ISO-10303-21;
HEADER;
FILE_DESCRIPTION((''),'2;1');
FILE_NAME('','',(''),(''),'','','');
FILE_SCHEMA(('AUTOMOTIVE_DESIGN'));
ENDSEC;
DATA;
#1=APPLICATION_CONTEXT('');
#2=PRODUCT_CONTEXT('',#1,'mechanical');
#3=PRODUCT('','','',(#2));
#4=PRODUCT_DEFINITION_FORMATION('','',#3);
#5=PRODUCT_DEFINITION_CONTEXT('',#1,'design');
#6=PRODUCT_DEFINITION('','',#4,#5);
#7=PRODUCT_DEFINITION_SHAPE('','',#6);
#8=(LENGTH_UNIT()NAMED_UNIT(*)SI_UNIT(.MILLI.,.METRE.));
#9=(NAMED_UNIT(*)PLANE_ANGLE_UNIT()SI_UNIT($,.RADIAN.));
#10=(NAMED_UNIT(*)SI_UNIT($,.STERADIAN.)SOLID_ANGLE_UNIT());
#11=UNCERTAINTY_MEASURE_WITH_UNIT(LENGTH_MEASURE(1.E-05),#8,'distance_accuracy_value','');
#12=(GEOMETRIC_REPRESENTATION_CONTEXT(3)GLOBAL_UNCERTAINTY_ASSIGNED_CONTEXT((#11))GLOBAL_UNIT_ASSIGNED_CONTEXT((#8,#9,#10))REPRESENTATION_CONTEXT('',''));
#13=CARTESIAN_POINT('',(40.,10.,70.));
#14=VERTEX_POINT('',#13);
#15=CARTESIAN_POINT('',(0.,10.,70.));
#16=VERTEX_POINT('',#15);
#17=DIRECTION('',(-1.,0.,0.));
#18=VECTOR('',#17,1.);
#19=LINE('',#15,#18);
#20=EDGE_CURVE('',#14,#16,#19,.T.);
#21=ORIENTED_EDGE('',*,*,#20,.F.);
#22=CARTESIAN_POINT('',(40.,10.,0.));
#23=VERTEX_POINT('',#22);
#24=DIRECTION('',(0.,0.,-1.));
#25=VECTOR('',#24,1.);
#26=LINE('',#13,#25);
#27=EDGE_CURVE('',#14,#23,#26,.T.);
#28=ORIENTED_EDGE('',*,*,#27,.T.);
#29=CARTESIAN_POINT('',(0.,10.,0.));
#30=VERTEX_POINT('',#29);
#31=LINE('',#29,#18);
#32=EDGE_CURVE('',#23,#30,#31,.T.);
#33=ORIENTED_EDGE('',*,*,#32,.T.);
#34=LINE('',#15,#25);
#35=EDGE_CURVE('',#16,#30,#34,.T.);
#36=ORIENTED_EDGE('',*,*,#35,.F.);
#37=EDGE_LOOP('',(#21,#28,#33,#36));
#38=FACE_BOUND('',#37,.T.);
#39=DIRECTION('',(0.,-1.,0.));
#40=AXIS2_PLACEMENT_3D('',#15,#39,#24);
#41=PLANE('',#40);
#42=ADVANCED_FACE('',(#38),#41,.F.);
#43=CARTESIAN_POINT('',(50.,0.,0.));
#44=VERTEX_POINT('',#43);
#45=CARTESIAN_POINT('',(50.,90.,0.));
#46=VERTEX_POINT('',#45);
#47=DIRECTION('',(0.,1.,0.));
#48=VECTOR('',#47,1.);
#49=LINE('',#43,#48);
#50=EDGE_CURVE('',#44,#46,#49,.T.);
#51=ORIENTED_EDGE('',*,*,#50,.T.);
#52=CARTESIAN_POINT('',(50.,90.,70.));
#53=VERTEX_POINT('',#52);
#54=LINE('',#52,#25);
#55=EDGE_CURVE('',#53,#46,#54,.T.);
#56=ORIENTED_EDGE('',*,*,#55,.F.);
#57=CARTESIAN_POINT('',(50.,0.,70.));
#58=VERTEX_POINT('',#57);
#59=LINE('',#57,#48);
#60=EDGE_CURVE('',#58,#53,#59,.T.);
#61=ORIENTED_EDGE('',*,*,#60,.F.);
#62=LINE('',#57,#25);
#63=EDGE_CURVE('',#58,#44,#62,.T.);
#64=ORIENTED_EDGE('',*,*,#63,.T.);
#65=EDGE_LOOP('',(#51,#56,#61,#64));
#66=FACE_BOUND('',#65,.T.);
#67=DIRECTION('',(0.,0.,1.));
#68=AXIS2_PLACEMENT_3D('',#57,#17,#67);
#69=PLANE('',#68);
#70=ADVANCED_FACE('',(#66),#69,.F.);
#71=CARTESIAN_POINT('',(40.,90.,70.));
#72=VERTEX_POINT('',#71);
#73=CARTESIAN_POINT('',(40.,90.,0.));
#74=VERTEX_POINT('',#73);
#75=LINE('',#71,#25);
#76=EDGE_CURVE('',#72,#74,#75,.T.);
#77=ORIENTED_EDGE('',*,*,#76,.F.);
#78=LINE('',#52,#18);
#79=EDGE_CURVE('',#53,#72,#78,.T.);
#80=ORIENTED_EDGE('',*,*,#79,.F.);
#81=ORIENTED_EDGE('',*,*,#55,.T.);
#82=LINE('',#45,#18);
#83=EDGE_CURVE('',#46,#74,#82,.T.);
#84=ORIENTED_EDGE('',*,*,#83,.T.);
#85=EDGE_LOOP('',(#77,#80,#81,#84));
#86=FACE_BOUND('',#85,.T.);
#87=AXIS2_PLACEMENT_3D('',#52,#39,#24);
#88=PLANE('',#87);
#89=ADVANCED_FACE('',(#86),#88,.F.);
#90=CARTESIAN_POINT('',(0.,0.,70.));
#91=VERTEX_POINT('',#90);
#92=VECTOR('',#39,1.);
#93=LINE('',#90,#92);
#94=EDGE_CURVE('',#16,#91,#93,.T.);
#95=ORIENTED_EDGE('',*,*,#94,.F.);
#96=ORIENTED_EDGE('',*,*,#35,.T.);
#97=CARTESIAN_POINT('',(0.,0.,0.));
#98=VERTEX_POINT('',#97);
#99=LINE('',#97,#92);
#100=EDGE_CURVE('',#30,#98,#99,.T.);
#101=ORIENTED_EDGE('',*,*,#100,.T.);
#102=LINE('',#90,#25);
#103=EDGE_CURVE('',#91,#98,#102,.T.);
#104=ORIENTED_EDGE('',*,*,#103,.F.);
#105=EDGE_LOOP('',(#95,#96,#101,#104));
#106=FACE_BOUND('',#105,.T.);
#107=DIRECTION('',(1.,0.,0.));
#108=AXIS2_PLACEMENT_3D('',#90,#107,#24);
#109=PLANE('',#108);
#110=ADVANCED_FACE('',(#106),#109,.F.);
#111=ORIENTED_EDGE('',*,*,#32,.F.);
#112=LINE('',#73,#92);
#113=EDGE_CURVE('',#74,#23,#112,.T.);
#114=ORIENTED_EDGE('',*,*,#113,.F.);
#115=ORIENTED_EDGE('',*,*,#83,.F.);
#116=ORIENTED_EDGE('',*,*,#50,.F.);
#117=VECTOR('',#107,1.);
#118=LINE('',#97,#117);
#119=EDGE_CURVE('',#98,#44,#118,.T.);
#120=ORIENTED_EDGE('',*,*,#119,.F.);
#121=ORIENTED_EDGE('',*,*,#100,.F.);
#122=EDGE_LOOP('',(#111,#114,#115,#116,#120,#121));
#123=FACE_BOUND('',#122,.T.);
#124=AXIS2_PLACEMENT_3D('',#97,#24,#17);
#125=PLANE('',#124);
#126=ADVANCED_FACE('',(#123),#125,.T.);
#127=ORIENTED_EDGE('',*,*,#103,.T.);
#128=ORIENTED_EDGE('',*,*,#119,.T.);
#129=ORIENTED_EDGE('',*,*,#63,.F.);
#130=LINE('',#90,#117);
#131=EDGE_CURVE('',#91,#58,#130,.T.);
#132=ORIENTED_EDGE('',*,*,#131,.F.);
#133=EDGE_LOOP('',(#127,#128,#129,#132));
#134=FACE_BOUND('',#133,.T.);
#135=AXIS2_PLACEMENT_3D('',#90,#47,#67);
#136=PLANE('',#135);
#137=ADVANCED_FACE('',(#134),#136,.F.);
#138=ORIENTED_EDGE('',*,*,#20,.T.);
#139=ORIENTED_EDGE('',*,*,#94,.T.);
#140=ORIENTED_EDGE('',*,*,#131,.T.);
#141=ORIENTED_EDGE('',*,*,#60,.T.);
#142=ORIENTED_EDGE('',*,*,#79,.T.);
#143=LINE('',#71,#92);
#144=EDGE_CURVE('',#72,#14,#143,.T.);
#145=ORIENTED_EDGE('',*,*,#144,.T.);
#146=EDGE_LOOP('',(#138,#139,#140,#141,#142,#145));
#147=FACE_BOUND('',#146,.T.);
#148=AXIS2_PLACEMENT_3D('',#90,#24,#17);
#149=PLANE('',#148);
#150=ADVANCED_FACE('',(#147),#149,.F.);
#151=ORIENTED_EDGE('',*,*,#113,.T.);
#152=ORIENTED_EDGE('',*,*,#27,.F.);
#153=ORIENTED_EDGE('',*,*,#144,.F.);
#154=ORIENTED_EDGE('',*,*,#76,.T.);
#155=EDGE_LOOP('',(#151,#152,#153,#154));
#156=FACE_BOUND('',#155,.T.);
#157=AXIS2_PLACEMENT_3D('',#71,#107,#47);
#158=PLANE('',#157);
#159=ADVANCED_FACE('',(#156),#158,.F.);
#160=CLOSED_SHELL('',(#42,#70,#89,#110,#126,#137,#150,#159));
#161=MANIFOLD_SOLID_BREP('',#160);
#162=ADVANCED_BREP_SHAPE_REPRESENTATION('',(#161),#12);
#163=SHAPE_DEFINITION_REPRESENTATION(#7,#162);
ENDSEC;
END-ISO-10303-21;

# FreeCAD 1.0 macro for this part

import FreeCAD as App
import Part
import Sketcher
from FreeCAD import Vector

doc = App.newDocument("Part")
body = doc.addObject("PartDesign::Body", "Body")

sketch1 = body.newObject("Sketcher::SketchObject", "Sketch")
sketch1.AttachmentSupport = (doc.getObject("XY_Plane"), [""])
sketch1.MapMode = "FlatFace"
sketch1.addGeometry([
    Part.LineSegment(Vector(0, 0, 0), Vector(50, 0, 0)),
    Part.LineSegment(Vector(50, 0, 0), Vector(50, 90, 0)),
    Part.LineSegment(Vector(50, 90, 0), Vector(40, 90, 0)),
    Part.LineSegment(Vector(40, 90, 0), Vector(40, 10, 0)),
    Part.LineSegment(Vector(40, 10, 0), Vector(0, 10, 0)),
    Part.LineSegment(Vector(0, 10, 0), Vector(0, 0, 0)),
], False)
sketch1.addConstraint([
    Sketcher.Constraint("Coincident", 0, 2, 1, 1),
    Sketcher.Constraint("Coincident", 1, 2, 2, 1),
    Sketcher.Constraint("Coincident", 2, 2, 3, 1),
    Sketcher.Constraint("Coincident", 3, 2, 4, 1),
    Sketcher.Constraint("Coincident", 4, 2, 5, 1),
    Sketcher.Constraint("Coincident", 5, 2, 0, 1),
    Sketcher.Constraint("Horizontal", 0),
    Sketcher.Constraint("Vertical", 1),
    Sketcher.Constraint("Horizontal", 2),
    Sketcher.Constraint("Vertical", 3),
    Sketcher.Constraint("Horizontal", 4),
    Sketcher.Constraint("Vertical", 5),
    Sketcher.Constraint("Coincident", 5, 2, -1, 1),
    Sketcher.Constraint("Equal", 2, 5),
    Sketcher.Constraint("DistanceX", 0, 1, 0, 2, 50.0),
    Sketcher.Constraint("DistanceX", 2, 2, 2, 1, 10.0),
    Sketcher.Constraint("DistanceY", 1, 1, 1, 2, 90.0),
])
pad1 = body.newObject("PartDesign::Pad", "Pad")
pad1.Profile = sketch1
pad1.Length = 70

doc.recompute()
